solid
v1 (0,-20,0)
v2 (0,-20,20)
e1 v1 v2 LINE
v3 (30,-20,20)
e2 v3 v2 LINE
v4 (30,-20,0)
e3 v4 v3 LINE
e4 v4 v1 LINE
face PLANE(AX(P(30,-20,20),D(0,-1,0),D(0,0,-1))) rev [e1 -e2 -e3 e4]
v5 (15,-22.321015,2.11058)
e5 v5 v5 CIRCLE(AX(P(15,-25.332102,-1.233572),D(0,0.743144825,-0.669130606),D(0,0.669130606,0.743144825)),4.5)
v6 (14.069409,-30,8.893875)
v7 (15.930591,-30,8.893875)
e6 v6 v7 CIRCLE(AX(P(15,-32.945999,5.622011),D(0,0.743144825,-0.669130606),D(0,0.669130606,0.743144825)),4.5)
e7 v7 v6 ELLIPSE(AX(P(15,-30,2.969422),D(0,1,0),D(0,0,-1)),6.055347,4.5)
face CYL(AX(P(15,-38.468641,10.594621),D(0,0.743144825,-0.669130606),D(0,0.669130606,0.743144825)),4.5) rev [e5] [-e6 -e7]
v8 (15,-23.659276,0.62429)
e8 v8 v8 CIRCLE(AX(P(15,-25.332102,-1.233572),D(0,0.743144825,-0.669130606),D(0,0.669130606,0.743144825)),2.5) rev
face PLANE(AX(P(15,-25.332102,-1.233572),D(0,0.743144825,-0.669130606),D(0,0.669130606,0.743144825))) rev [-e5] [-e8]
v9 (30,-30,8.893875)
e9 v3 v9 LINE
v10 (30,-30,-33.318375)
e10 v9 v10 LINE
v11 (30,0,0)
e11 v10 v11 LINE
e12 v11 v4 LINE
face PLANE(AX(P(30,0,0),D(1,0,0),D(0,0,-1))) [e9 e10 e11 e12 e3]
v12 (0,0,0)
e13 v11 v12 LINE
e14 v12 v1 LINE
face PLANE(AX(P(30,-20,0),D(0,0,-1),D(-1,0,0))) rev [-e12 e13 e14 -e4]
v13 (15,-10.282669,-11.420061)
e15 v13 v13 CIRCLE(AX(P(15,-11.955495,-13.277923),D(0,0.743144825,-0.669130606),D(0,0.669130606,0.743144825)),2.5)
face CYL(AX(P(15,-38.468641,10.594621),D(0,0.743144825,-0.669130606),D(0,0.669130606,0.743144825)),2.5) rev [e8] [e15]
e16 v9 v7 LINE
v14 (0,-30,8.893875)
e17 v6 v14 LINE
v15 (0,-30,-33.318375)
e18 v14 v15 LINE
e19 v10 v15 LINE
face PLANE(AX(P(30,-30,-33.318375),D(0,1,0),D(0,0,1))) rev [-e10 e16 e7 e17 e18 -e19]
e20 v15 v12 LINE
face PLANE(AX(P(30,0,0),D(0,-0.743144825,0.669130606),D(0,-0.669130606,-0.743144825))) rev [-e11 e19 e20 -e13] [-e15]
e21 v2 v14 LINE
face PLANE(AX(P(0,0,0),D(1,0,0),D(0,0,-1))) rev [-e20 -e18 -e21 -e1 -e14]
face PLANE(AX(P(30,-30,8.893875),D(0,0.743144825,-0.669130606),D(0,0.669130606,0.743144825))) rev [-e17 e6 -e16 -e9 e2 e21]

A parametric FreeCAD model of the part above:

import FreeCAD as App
import Part
import Sketcher
Q = App.Units.Quantity


def add_polygon(sketch, points):
    """Adds a closed chain of lines whose ends are joined by coincident constraints."""
    first, n = sketch.GeometryCount, len(points)
    for a, b in zip(points, points[1:] + points[:1]):
        sketch.addGeometry(Part.LineSegment(App.Vector(*a, 0), App.Vector(*b, 0)), False)
    for i in range(n):
        sketch.addConstraint(Sketcher.Constraint("Coincident", first + i, 2, first + (i + 1) % n, 1))

doc = App.newDocument("Part")
body = doc.addObject("PartDesign::Body", "Body")

# Sketch on YZ plane
sketch1 = doc.addObject("Sketcher::SketchObject", "Sketch")
body.addObject(sketch1)
sketch1.AttachmentSupport = (doc.YZ_Plane, [""])
sketch1.MapMode = "FlatFace"
add_polygon(sketch1, [(-30, -33.318375), (0, 0), (-20, 0), (-20, 20), (-30, 8.893875)])  # lines 0-4
sketch1.addConstraint(Sketcher.Constraint("Horizontal", 1))
sketch1.addConstraint(Sketcher.Constraint("Vertical", 2))
sketch1.addConstraint(Sketcher.Constraint("Vertical", 4))
sketch1.addConstraint(Sketcher.Constraint("Coincident", 0, 2, -1, 1))
sketch1.addConstraint(Sketcher.Constraint("Parallel", 0, 3))
sketch1.addConstraint(Sketcher.Constraint("Equal", 1, 2))
sketch1.addConstraint(Sketcher.Constraint("DistanceX", 1, 2, 1, 1, Q("20 mm")))
sketch1.addConstraint(Sketcher.Constraint("Angle", 0, Q("48 deg")))
sketch1.addConstraint(Sketcher.Constraint("DistanceX", 3, 2, -1, 1, Q("30 mm")))
pad1 = doc.addObject("PartDesign::Pad", "Pad")
body.addObject(pad1)
pad1.Profile = sketch1
pad1.Length = 30

# Sketch on an angled plane
sketch2 = doc.addObject("Sketcher::SketchObject", "Sketch001")
body.addObject(sketch2)
sketch2.Placement = App.Placement(App.Vector(0, 0, 0), App.Rotation(App.Vector(1, 0, 0), App.Vector(0, -0.669130606, -0.743144825), App.Vector(0, 0.743144825, -0.669130606), "ZXY"))
sketch2.addGeometry(Part.Circle(App.Vector(15, 17.867208, 0), App.Vector(0, 0, 1), 2.5), False)
sketch2.addConstraint(Sketcher.Constraint("Diameter", 0, Q("5 mm")))
sketch2.addConstraint(Sketcher.Constraint("DistanceX", -1, 1, 0, 3, Q("15 mm")))
sketch2.addConstraint(Sketcher.Constraint("DistanceY", -1, 1, 0, 3, Q("17.867208 mm")))
pocket1 = doc.addObject("PartDesign::Pocket", "Pocket")
body.addObject(pocket1)
pocket1.Profile = sketch2
pocket1.Type = "ThroughAll"

# Sketch on an angled plane
sketch3 = doc.addObject("Sketcher::SketchObject", "Sketch002")
body.addObject(sketch3)
sketch3.Placement = App.Placement(App.Vector(0, -13.376607, 12.044351), App.Rotation(App.Vector(1, 0, 0), App.Vector(0, -0.669130606, -0.743144825), App.Vector(0, 0.743144825, -0.669130606), "ZXY"))
sketch3.addGeometry(Part.Circle(App.Vector(15, 17.867208, 0), App.Vector(0, 0, 1), 4.5), False)
sketch3.addConstraint(Sketcher.Constraint("Diameter", 0, Q("9 mm")))
sketch3.addConstraint(Sketcher.Constraint("DistanceX", -1, 1, 0, 3, Q("15 mm")))
sketch3.addConstraint(Sketcher.Constraint("DistanceY", -1, 1, 0, 3, Q("17.867208 mm")))
pocket2 = doc.addObject("PartDesign::Pocket", "Pocket001")
body.addObject(pocket2)
pocket2.Profile = sketch3
pocket2.Type = "ThroughAll"

doc.recompute()
